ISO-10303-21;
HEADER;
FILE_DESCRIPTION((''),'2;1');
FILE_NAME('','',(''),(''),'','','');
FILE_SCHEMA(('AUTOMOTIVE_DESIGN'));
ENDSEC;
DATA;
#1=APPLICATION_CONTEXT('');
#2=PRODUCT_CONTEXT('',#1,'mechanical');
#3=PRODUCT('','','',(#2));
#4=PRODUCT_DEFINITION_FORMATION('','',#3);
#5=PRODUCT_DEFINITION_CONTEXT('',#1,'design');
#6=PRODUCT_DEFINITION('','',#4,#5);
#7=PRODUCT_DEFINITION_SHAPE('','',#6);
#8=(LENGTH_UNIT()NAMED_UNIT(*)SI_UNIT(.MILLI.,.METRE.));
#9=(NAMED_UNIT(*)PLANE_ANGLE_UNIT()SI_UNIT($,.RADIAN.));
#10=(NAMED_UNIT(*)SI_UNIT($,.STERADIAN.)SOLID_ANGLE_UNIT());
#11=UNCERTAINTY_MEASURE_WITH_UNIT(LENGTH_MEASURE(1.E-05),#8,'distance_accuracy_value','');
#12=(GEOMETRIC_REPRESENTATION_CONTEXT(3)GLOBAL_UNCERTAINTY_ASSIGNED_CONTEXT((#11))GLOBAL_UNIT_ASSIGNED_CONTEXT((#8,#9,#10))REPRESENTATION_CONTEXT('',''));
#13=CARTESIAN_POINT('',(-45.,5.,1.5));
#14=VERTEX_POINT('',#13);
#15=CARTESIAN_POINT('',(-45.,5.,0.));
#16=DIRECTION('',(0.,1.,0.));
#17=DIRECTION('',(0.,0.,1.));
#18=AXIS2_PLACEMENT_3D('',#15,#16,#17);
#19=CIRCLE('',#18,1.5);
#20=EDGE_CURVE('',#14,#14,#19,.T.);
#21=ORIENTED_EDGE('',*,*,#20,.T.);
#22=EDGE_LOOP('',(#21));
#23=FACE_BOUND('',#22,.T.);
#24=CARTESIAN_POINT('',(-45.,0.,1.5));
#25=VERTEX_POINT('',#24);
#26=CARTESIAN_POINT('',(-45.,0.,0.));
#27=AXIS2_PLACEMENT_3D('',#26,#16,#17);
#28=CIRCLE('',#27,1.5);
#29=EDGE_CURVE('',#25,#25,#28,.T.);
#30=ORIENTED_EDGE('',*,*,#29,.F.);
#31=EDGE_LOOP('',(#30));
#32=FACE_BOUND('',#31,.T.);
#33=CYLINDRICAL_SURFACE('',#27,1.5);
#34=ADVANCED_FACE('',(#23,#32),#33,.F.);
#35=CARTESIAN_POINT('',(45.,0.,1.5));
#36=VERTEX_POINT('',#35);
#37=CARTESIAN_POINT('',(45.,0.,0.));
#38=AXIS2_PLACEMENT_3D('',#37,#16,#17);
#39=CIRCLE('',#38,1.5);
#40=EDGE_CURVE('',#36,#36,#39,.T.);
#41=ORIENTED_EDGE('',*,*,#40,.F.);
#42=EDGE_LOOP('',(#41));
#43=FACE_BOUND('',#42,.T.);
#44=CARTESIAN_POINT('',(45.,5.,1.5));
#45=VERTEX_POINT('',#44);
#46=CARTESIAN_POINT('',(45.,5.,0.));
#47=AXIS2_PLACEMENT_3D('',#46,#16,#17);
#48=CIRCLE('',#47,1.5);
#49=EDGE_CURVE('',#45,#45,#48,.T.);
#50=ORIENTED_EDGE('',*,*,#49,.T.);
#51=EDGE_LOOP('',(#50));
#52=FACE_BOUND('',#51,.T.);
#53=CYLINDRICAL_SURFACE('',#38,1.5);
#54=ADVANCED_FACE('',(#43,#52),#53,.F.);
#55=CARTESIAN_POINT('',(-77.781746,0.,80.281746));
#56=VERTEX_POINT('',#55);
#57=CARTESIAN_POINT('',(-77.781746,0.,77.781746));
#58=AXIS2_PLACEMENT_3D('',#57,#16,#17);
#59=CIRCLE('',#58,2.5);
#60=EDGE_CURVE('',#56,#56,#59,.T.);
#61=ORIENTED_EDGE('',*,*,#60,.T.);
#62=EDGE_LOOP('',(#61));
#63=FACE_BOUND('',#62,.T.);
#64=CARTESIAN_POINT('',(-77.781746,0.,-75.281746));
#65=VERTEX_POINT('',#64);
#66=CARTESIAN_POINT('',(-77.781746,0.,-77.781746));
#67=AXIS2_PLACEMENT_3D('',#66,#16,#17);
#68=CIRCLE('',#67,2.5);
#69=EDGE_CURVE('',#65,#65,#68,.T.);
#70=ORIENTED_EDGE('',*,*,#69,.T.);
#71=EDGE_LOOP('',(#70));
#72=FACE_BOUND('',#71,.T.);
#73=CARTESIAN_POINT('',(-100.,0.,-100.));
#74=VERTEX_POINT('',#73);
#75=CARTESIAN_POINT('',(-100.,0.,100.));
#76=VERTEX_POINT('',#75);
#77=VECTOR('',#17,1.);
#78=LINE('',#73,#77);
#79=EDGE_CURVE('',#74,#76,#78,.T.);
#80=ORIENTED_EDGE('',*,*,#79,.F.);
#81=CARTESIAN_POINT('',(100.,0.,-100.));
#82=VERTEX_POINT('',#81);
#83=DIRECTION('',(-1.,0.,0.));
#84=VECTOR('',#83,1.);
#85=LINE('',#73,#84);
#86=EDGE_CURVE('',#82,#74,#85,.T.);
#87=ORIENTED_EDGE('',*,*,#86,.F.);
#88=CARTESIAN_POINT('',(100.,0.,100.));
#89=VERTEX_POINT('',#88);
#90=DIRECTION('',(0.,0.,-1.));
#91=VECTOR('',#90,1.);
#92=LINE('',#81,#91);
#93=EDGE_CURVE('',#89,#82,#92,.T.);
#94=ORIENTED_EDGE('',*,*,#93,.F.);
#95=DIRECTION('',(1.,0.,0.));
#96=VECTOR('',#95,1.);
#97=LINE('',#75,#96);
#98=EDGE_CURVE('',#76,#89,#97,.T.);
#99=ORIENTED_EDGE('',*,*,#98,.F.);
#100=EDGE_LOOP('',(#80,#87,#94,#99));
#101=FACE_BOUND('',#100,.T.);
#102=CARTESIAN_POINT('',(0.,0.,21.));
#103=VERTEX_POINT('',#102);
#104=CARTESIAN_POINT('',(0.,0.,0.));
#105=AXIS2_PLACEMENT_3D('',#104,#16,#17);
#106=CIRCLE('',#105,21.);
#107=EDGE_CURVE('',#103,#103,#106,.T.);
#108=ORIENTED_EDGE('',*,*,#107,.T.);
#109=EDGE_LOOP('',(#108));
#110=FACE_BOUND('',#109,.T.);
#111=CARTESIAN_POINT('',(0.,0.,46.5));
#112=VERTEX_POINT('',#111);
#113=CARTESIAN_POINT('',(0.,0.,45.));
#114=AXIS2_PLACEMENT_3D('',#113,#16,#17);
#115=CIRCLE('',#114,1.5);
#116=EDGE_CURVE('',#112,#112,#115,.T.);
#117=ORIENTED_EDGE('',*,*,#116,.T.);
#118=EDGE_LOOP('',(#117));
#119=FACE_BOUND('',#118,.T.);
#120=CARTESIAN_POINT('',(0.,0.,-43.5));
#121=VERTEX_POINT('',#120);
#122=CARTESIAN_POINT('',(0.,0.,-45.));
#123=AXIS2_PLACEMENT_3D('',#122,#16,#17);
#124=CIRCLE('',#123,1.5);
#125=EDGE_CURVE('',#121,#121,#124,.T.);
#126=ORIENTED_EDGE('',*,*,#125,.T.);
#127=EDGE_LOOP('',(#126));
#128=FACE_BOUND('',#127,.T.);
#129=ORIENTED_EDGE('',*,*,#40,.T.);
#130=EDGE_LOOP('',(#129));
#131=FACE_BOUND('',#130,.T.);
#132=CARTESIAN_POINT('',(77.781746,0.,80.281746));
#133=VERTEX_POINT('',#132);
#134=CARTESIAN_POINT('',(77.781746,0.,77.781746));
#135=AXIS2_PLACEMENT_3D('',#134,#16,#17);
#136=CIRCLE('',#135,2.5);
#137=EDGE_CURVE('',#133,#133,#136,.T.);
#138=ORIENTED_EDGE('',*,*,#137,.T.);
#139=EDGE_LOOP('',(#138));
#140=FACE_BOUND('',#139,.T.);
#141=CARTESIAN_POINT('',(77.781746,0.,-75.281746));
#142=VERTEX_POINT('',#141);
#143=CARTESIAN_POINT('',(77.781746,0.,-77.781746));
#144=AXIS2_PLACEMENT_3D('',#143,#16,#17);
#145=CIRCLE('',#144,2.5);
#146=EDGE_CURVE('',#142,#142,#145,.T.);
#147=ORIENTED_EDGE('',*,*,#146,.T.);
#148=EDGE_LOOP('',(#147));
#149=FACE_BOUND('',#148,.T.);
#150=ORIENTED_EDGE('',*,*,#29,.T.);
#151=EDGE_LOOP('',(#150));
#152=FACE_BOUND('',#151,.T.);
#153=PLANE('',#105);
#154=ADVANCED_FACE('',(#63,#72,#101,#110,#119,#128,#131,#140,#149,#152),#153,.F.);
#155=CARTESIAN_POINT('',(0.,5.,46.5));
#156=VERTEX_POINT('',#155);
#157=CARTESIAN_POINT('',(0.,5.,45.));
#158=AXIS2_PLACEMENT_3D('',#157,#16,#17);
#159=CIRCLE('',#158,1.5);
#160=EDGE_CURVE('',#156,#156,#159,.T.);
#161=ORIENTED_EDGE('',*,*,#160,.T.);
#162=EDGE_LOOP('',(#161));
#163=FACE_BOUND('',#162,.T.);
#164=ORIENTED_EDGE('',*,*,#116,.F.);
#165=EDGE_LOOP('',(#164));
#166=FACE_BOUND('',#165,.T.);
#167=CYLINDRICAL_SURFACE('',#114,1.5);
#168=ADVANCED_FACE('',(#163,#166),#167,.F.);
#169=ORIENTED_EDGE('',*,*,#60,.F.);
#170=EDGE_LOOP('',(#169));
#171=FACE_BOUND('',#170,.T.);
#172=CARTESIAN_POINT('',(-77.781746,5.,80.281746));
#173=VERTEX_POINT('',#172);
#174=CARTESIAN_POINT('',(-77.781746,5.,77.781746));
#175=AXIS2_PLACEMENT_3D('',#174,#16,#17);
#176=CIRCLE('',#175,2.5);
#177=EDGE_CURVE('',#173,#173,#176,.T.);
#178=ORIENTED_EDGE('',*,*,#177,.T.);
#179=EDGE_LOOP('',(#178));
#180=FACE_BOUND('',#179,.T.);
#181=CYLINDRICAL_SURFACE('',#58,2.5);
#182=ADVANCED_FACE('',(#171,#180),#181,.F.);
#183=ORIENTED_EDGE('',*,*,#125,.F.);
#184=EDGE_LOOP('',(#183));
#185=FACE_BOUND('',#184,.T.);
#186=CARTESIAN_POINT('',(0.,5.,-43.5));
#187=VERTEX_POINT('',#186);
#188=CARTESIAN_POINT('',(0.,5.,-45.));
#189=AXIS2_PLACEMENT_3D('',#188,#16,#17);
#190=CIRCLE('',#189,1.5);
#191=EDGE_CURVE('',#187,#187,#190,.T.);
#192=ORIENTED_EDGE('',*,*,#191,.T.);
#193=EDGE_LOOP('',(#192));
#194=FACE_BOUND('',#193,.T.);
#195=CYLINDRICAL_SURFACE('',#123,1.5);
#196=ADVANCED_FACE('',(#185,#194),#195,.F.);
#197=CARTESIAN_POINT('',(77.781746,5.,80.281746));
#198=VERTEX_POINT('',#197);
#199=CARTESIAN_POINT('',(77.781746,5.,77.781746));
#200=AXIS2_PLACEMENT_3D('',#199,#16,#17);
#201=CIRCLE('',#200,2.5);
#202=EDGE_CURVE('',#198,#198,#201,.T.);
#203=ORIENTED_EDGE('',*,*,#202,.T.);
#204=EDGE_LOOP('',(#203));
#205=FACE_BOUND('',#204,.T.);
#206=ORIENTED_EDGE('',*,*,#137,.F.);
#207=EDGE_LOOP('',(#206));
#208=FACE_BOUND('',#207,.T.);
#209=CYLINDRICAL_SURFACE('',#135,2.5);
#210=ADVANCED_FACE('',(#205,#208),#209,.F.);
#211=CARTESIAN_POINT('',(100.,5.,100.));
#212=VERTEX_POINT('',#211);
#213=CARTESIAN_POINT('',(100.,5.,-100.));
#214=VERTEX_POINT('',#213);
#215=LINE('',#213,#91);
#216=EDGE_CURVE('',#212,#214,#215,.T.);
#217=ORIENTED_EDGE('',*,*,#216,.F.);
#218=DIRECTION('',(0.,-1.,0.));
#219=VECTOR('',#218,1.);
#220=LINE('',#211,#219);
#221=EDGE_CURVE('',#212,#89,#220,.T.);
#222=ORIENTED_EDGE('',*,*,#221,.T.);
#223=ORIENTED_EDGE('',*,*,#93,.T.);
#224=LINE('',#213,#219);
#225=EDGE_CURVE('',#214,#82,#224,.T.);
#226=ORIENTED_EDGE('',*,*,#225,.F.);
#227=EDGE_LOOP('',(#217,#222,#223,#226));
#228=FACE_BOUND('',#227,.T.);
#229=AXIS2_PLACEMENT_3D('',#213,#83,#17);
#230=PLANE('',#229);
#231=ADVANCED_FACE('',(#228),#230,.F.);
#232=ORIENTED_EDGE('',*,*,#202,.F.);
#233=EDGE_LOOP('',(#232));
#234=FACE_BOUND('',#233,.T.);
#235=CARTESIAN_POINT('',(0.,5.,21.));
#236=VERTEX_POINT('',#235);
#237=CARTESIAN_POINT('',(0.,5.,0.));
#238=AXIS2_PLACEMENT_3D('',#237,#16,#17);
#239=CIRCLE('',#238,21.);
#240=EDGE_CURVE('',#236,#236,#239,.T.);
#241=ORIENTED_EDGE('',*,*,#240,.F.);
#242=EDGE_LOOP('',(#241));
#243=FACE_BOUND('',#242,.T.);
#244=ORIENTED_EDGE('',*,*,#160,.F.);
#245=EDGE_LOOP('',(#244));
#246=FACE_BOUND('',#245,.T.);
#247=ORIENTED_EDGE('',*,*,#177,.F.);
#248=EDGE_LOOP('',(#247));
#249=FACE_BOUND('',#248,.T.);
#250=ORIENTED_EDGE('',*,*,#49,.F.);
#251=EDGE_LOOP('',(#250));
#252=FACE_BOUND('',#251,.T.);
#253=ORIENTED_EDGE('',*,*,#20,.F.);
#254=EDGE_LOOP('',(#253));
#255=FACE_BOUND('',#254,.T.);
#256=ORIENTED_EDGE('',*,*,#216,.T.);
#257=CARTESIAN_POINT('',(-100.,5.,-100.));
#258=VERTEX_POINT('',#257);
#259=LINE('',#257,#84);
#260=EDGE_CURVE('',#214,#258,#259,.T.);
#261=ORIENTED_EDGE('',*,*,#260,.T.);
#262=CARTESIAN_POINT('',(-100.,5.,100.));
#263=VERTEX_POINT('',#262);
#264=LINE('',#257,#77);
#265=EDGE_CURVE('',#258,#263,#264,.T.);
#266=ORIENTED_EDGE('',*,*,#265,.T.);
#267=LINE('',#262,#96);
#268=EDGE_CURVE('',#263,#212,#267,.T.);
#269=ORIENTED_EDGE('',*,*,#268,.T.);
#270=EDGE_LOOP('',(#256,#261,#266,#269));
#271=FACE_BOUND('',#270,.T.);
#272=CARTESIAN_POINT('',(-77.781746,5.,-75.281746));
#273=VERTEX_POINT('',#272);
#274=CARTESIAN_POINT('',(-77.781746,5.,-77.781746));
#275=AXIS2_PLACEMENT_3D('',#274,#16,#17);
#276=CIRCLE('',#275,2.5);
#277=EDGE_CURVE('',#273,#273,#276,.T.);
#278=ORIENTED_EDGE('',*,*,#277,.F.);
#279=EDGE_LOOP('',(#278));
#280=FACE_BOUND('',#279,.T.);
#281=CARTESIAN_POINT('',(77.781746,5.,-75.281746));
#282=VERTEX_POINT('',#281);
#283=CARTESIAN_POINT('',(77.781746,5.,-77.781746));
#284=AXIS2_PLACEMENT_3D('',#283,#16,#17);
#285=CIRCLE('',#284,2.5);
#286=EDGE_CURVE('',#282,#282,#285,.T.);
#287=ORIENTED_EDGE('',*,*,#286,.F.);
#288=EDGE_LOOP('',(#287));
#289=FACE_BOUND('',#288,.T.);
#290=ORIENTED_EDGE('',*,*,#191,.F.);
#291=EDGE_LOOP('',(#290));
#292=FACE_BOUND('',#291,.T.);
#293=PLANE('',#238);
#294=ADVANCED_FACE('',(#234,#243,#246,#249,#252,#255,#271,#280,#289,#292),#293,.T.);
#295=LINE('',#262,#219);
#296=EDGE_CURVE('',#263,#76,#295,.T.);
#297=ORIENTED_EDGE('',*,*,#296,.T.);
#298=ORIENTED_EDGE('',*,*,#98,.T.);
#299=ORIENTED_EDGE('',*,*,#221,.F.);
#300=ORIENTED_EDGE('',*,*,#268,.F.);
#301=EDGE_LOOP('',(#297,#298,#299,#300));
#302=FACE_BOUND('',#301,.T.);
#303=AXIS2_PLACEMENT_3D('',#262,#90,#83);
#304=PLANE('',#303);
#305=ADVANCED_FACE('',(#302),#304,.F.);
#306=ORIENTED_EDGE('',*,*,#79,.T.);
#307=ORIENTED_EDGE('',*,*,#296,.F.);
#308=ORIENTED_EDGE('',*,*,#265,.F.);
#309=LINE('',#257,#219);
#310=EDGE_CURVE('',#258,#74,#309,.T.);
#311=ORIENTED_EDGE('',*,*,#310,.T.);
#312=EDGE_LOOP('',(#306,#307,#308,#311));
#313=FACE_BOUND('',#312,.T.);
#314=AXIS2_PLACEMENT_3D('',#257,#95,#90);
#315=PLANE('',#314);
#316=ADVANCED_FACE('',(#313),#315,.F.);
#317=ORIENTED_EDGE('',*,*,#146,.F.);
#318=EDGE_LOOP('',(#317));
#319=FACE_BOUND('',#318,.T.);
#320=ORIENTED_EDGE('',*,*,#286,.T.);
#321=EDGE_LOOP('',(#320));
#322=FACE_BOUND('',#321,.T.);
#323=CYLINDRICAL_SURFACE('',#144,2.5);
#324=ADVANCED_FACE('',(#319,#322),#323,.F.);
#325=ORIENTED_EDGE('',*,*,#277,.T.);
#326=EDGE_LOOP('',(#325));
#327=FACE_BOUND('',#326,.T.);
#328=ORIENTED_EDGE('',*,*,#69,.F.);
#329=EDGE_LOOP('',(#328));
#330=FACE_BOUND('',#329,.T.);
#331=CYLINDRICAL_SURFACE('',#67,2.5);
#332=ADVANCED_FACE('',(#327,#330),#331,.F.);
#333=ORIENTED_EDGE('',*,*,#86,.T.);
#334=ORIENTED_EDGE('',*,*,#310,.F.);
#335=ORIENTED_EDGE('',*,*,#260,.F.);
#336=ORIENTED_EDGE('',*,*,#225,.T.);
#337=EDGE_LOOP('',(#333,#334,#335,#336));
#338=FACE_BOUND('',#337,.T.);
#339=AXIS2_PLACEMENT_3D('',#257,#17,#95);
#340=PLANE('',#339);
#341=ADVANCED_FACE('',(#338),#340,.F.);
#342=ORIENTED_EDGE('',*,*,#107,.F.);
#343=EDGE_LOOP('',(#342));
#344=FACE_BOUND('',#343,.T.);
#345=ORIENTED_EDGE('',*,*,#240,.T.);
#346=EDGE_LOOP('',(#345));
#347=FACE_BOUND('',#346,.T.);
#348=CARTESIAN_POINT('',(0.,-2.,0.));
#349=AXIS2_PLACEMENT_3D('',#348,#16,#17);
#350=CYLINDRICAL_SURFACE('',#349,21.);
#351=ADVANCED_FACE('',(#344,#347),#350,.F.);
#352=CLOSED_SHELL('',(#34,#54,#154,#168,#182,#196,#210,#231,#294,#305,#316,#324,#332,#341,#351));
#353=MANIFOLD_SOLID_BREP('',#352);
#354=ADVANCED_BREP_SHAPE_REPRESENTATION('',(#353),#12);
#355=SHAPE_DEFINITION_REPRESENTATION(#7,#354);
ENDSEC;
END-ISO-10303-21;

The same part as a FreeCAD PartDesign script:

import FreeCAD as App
import Part
import Sketcher
from FreeCAD import Vector

doc = App.newDocument("Part")
params = doc.addObject("Spreadsheet::Sheet", "Params")
for row, (alias, value) in enumerate([
    ("sketch1_width", "200 mm"),
    ("pad1_length", "5 mm"),
    ("sketch2_diameter", "5 mm"),
    ("pocket1_length", "5 mm"),
    ("sketch3_diameter", "3 mm"),
    ("pocket2_length", "5 mm"),
    ("sketch4_diameter", "42 mm"),
    ("pocket3_length", "7 mm"),
], start=1):
    params.set(f"A{row}", alias)
    params.set(f"B{row}", "=" + value)
    params.setAlias(f"B{row}", alias)

body = doc.addObject("PartDesign::Body", "Body")

# Sketch on XZ plane
sketch1 = doc.addObject("Sketcher::SketchObject", "Sketch")
body.addObject(sketch1)
sketch1.AttachmentSupport = (doc.XZ_Plane, [""])
sketch1.MapMode = "FlatFace"
sketch1.addGeometry(Part.LineSegment(Vector(-100, -100, 0), Vector(-100, 100, 0)), False)
sketch1.addGeometry(Part.LineSegment(Vector(-100, 100, 0), Vector(100, 100, 0)), False)
sketch1.addGeometry(Part.LineSegment(Vector(100, 100, 0), Vector(100, -100, 0)), False)
sketch1.addGeometry(Part.LineSegment(Vector(100, -100, 0), Vector(-100, -100, 0)), False)
sketch1.addConstraint(Sketcher.Constraint("Coincident", 0, 2, 1, 1))
sketch1.addConstraint(Sketcher.Constraint("Coincident", 1, 2, 2, 1))
sketch1.addConstraint(Sketcher.Constraint("Coincident", 2, 2, 3, 1))
sketch1.addConstraint(Sketcher.Constraint("Coincident", 3, 2, 0, 1))
sketch1.addConstraint(Sketcher.Constraint("Vertical", 0))
sketch1.addConstraint(Sketcher.Constraint("Horizontal", 1))
sketch1.addConstraint(Sketcher.Constraint("Vertical", 2))
sketch1.addConstraint(Sketcher.Constraint("Horizontal", 3))
sketch1.addConstraint(Sketcher.Constraint("Symmetric", 0, 2, 2, 2, -1, 1))
sketch1.addConstraint(Sketcher.Constraint("Equal", 3, 0))
sketch1.addConstraint(Sketcher.Constraint("DistanceX", 1, 1, 1, 2, 200.0))
sketch1.setExpression("Constraints[10]", "Params.sketch1_width")
pad1 = doc.addObject("PartDesign::Pad", "Pad")
body.addObject(pad1)
pad1.Profile = sketch1
pad1.setExpression("Length", "Params.pad1_length")
pad1.Reversed = True

# Sketch on XZ plane
sketch2 = doc.addObject("Sketcher::SketchObject", "Sketch001")
body.addObject(sketch2)
sketch2.AttachmentSupport = (doc.XZ_Plane, [""])
sketch2.MapMode = "FlatFace"
sketch2.AttachmentOffset = App.Placement(Vector(0, 0, -5), App.Rotation())
sketch2.addGeometry(Part.Circle(Vector(77.781746, -77.781746, 0), Vector(0, 0, 1), 2.5), False)
sketch2.addGeometry(Part.Circle(Vector(77.781746, 77.781746, 0), Vector(0, 0, 1), 2.5), False)
sketch2.addGeometry(Part.Circle(Vector(-77.781746, 77.781746, 0), Vector(0, 0, 1), 2.5), False)
sketch2.addGeometry(Part.Circle(Vector(-77.781746, -77.781746, 0), Vector(0, 0, 1), 2.5), False)
sketch2.addConstraint(Sketcher.Constraint("Equal", 0, 1))
sketch2.addConstraint(Sketcher.Constraint("Equal", 1, 2))
sketch2.addConstraint(Sketcher.Constraint("Equal", 2, 3))
sketch2.addConstraint(Sketcher.Constraint("Symmetric", 0, 3, 2, 3, -1, 1))
sketch2.addConstraint(Sketcher.Constraint("Symmetric", 1, 3, 3, 3, -1, 1))
sketch2.addConstraint(Sketcher.Constraint("Symmetric", 1, 3, 2, 3, -2))
sketch2.addConstraint(Sketcher.Constraint("Diameter", 0, 5.0))
sketch2.addConstraint(Sketcher.Constraint("DistanceY", 0, 3, 1, 3, 155.563492))
sketch2.addConstraint(Sketcher.Constraint("DistanceX", 2, 3, 1, 3, 155.563492))
sketch2.setExpression("Constraints[6]", "Params.sketch2_diameter")
pocket1 = doc.addObject("PartDesign::Pocket", "Pocket")
body.addObject(pocket1)
pocket1.Profile = sketch2
pocket1.setExpression("Length", "Params.pocket1_length")
pocket1.Reversed = True

# Sketch on XZ plane
sketch3 = doc.addObject("Sketcher::SketchObject", "Sketch002")
body.addObject(sketch3)
sketch3.AttachmentSupport = (doc.XZ_Plane, [""])
sketch3.MapMode = "FlatFace"
sketch3.AttachmentOffset = App.Placement(Vector(0, 0, -5), App.Rotation())
sketch3.addGeometry(Part.Circle(Vector(0, 45, 0), Vector(0, 0, 1), 1.5), False)
sketch3.addGeometry(Part.Circle(Vector(-45, 0, 0), Vector(0, 0, 1), 1.5), False)
sketch3.addGeometry(Part.Circle(Vector(0, -45, 0), Vector(0, 0, 1), 1.5), False)
sketch3.addGeometry(Part.Circle(Vector(45, 0, 0), Vector(0, 0, 1), 1.5), False)
sketch3.addConstraint(Sketcher.Constraint("Equal", 0, 1))
sketch3.addConstraint(Sketcher.Constraint("Equal", 1, 2))
sketch3.addConstraint(Sketcher.Constraint("Equal", 2, 3))
sketch3.addConstraint(Sketcher.Constraint("Symmetric", 0, 3, 2, 3, -1, 1))
sketch3.addConstraint(Sketcher.Constraint("Symmetric", 1, 3, 3, 3, -1, 1))
sketch3.addConstraint(Sketcher.Constraint("PointOnObject", 0, 3, -2))
sketch3.addConstraint(Sketcher.Constraint("PointOnObject", 1, 3, -1))
sketch3.addConstraint(Sketcher.Constraint("Diameter", 0, 3.0))
sketch3.addConstraint(Sketcher.Constraint("DistanceY", -1, 1, 0, 3, 45.0))
sketch3.addConstraint(Sketcher.Constraint("DistanceX", 1, 3, -1, 1, 45.0))
sketch3.setExpression("Constraints[7]", "Params.sketch3_diameter")
pocket2 = doc.addObject("PartDesign::Pocket", "Pocket001")
body.addObject(pocket2)
pocket2.Profile = sketch3
pocket2.setExpression("Length", "Params.pocket2_length")
pocket2.Reversed = True

# Sketch on XZ plane
sketch4 = doc.addObject("Sketcher::SketchObject", "Sketch003")
body.addObject(sketch4)
sketch4.AttachmentSupport = (doc.XZ_Plane, [""])
sketch4.MapMode = "FlatFace"
sketch4.AttachmentOffset = App.Placement(Vector(0, 0, -5), App.Rotation())
sketch4.addGeometry(Part.Circle(Vector(0, 0, 0), Vector(0, 0, 1), 21), False)
sketch4.addConstraint(Sketcher.Constraint("Coincident", 0, 3, -1, 1))
sketch4.addConstraint(Sketcher.Constraint("Diameter", 0, 42.0))
sketch4.setExpression("Constraints[1]", "Params.sketch4_diameter")
pocket3 = doc.addObject("PartDesign::Pocket", "Pocket002")
body.addObject(pocket3)
pocket3.Profile = sketch4
pocket3.setExpression("Length", "Params.pocket3_length")
pocket3.Reversed = True

doc.recompute()
